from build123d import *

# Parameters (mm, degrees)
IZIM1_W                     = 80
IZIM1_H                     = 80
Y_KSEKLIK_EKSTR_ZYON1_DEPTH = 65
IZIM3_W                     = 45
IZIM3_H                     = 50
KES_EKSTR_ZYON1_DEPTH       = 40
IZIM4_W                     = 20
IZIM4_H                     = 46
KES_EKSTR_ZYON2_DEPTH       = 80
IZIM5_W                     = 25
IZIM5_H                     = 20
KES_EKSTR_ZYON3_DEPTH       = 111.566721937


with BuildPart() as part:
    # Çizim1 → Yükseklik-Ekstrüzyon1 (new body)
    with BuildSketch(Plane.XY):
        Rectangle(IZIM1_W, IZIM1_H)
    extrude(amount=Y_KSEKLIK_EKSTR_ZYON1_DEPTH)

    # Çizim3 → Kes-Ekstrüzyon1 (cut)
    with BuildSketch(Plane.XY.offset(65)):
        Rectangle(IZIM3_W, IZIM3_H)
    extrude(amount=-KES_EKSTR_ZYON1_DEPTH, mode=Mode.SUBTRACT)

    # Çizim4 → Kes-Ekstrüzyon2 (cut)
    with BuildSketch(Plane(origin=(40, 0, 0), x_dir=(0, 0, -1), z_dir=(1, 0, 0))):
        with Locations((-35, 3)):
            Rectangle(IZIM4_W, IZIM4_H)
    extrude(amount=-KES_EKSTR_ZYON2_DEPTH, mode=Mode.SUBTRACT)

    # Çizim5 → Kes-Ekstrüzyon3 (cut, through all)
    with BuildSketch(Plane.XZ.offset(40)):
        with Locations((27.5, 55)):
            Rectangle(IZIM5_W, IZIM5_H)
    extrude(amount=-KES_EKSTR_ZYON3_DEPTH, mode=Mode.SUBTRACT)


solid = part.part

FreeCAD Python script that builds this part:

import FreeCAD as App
import Part
import Sketcher
from FreeCAD import Vector
Q = App.Units.Quantity


def add_polygon(sketch, points):
    """Adds a closed chain of lines whose ends are joined by coincident constraints."""
    first, n = sketch.GeometryCount, len(points)
    for a, b in zip(points, points[1:] + points[:1]):
        sketch.addGeometry(Part.LineSegment(App.Vector(*a, 0), App.Vector(*b, 0)), False)
    for i in range(n):
        sketch.addConstraint(Sketcher.Constraint("Coincident", first + i, 2, first + (i + 1) % n, 1))

doc = App.newDocument("Part")
body = doc.addObject("PartDesign::Body", "Body")

sketch1 = body.newObject("Sketcher::SketchObject", "Sketch")
sketch1.AttachmentSupport = (doc.getObject("XY_Plane"), [""])
sketch1.MapMode = "FlatFace"
add_polygon(sketch1, [(-40, 40), (-40, -40), (40, -40), (40, 40)])
sketch1.addConstraint([
    Sketcher.Constraint("Vertical", 0),
    Sketcher.Constraint("Horizontal", 1),
    Sketcher.Constraint("Vertical", 2),
    Sketcher.Constraint("Horizontal", 3),
    Sketcher.Constraint("Symmetric", 0, 2, 2, 2, -1, 1),
    Sketcher.Constraint("Equal", 3, 0),
    Sketcher.Constraint("DistanceX", 1, 1, 1, 2, Q("80 mm")),
])
pad1 = body.newObject("PartDesign::Pad", "Pad")
pad1.Profile = sketch1
pad1.Length = 65

sketch2 = body.newObject("Sketcher::SketchObject", "Sketch001")
sketch2.AttachmentSupport = (doc.getObject("XY_Plane"), [""])
sketch2.MapMode = "FlatFace"
sketch2.AttachmentOffset = App.Placement(Vector(0, 0, 65), App.Rotation())
add_polygon(sketch2, [(-22, 25), (-22, -25), (22, -25), (22, 25)])
sketch2.addConstraint([
    Sketcher.Constraint("Vertical", 0),
    Sketcher.Constraint("Horizontal", 1),
    Sketcher.Constraint("Vertical", 2),
    Sketcher.Constraint("Horizontal", 3),
    Sketcher.Constraint("Symmetric", 0, 2, 2, 2, -1, 1),
    Sketcher.Constraint("DistanceX", 1, 1, 1, 2, Q("45 mm")),
    Sketcher.Constraint("DistanceY", 0, 2, 0, 1, Q("50 mm")),
])
pocket1 = body.newObject("PartDesign::Pocket", "Pocket")
pocket1.Profile = sketch2
pocket1.Length = 40

sketch3 = body.newObject("Sketcher::SketchObject", "Sketch002")
sketch3.AttachmentSupport = (doc.getObject("YZ_Plane"), [""])
sketch3.MapMode = "FlatFace"
sketch3.AttachmentOffset = App.Placement(Vector(0, 0, 40), App.Rotation())
add_polygon(sketch3, [(26, 45), (-20, 45), (-20, 25), (26, 25)])
sketch3.addConstraint([
    Sketcher.Constraint("Horizontal", 0),
    Sketcher.Constraint("Vertical", 1),
    Sketcher.Constraint("Horizontal", 2),
    Sketcher.Constraint("Vertical", 3),
    Sketcher.Constraint("DistanceX", 0, 2, 0, 1, Q("46 mm")),
    Sketcher.Constraint("DistanceY", 1, 2, 1, 1, Q("20 mm")),
    Sketcher.Constraint("DistanceX", 0, 2, -1, 1, Q("20 mm")),
    Sketcher.Constraint("DistanceY", -1, 1, 0, 2, Q("45 mm")),
])
pocket2 = body.newObject("PartDesign::Pocket", "Pocket001")
pocket2.Profile = sketch3
pocket2.Length = 80

sketch4 = body.newObject("Sketcher::SketchObject", "Sketch003")
sketch4.AttachmentSupport = (doc.getObject("XZ_Plane"), [""])
sketch4.MapMode = "FlatFace"
sketch4.AttachmentOffset = App.Placement(Vector(0, 0, 40), App.Rotation())
add_polygon(sketch4, [(15, 65), (15, 45), (40, 45), (40, 65)])
sketch4.addConstraint([
    Sketcher.Constraint("Vertical", 0),
    Sketcher.Constraint("Horizontal", 1),
    Sketcher.Constraint("Vertical", 2),
    Sketcher.Constraint("Horizontal", 3),
    Sketcher.Constraint("DistanceX", 1, 1, 1, 2, Q("25 mm")),
    Sketcher.Constraint("DistanceY", 0, 2, 0, 1, Q("20 mm")),
    Sketcher.Constraint("DistanceX", -1, 1, 0, 2, Q("15 mm")),
    Sketcher.Constraint("DistanceY", -1, 1, 0, 2, Q("45 mm")),
])
pocket3 = body.newObject("PartDesign::Pocket", "Pocket002")
pocket3.Profile = sketch4
pocket3.Type = "ThroughAll"

doc.recompute()
